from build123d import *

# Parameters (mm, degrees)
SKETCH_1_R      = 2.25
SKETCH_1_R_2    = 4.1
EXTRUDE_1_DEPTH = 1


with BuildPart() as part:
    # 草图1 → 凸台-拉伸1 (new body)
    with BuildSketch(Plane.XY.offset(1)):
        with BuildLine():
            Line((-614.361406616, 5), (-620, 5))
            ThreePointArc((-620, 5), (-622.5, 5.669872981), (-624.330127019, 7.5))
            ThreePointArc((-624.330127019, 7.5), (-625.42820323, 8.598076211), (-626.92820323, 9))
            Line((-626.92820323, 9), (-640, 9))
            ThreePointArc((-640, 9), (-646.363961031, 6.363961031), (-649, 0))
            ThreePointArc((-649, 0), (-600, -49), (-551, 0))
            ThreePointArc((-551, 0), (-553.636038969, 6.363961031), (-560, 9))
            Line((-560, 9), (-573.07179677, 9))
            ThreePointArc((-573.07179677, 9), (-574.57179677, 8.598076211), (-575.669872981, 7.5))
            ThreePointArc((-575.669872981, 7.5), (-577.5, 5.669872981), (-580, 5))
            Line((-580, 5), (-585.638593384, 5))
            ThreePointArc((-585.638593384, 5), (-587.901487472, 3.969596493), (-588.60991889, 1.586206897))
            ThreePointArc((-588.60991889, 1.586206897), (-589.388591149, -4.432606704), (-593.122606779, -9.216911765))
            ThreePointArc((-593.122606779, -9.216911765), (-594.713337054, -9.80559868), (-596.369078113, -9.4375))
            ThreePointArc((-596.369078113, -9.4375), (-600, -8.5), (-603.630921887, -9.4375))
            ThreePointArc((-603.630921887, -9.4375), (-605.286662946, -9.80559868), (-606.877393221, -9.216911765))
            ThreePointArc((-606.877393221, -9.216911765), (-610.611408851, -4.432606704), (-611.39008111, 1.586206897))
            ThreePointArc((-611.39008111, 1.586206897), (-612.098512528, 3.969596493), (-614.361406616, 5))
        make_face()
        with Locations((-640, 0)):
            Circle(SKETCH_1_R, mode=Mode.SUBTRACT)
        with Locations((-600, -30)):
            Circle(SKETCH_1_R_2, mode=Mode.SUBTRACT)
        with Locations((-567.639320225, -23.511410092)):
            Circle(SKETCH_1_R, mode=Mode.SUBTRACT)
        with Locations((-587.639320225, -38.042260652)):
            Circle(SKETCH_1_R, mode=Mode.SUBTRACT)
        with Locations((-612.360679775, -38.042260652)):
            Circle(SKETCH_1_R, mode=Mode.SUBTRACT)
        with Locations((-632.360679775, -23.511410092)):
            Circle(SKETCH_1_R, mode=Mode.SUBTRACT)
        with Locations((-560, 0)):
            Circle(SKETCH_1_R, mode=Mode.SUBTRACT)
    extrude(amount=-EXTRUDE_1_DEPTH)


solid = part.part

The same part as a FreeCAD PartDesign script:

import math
import FreeCAD as App
import Part
import Sketcher

V = App.Vector

doc = App.newDocument("Part")
body = doc.addObject("PartDesign::Body", "Body")

sketch1 = body.newObject("Sketcher::SketchObject", "Sketch")
sketch1.AttachmentSupport = (doc.getObject("XY_Plane"), [""])
sketch1.MapMode = "FlatFace"
sketch1.AttachmentOffset = App.Placement(V(0, 0, 1), App.Rotation())
sketch1.addGeometry([
    Part.LineSegment(V(-614.4, 5, 0), V(-620, 5, 0)),
    Part.ArcOfCircle(Part.Circle(V(-620, 10, 0), V(0, 0, 1), 5), math.radians(-150), math.radians(-90)),
    Part.ArcOfCircle(Part.Circle(V(-626.9, 6, 0), V(0, 0, 1), 3), math.radians(30), math.radians(90)),
    Part.LineSegment(V(-626.9, 9, 0), V(-640, 9, 0)),
    Part.ArcOfCircle(Part.Circle(V(-640, 0, 0), V(0, 0, 1), 9), math.radians(90), math.radians(180)),
    Part.ArcOfCircle(Part.Circle(V(-600, 0, 0), V(0, 0, 1), 49), math.radians(180), math.radians(360)),
    Part.ArcOfCircle(Part.Circle(V(-560, 0, 0), V(0, 0, 1), 9), math.radians(0), math.radians(90)),
    Part.LineSegment(V(-560, 9, 0), V(-573.1, 9, 0)),
    Part.ArcOfCircle(Part.Circle(V(-573.1, 6, 0), V(0, 0, 1), 3), math.radians(90), math.radians(150)),
    Part.ArcOfCircle(Part.Circle(V(-580, 10, 0), V(0, 0, 1), 5), math.radians(-90), math.radians(-30)),
    Part.LineSegment(V(-580, 5, 0), V(-585.6, 5, 0)),
    Part.ArcOfCircle(Part.Circle(V(-585.6, 2, 0), V(0, 0, 1), 3), math.radians(90), math.radians(188)),
    Part.ArcOfCircle(Part.Circle(V(-600, 0, 0), V(0, 0, 1), 11.5), math.radians(-53), math.radians(8)),
    Part.ArcOfCircle(Part.Circle(V(-594.9, -6.8, 0), V(0, 0, 1), 3), math.radians(-119), math.radians(-53)),
    Part.ArcOfCircle(Part.Circle(V(-600, -16, 0), V(0, 0, 1), 7.5), math.radians(61), math.radians(119)),
    Part.ArcOfCircle(Part.Circle(V(-605.1, -6.8, 0), V(0, 0, 1), 3), math.radians(-127), math.radians(-61)),
    Part.ArcOfCircle(Part.Circle(V(-600, 0, 0), V(0, 0, 1), 11.5), math.radians(172), math.radians(233)),
    Part.ArcOfCircle(Part.Circle(V(-614.4, 2, 0), V(0, 0, 1), 3), math.radians(-8), math.radians(90)),
    Part.Circle(V(-612.4, -38, 0), V(0, 0, 1), 2.2),
    Part.Circle(V(-632.4, -23.5, 0), V(0, 0, 1), 2.2),
    Part.Circle(V(-587.6, -38, 0), V(0, 0, 1), 2.2),
    Part.Circle(V(-600, -30, 0), V(0, 0, 1), 4.1),
    Part.Circle(V(-567.6, -23.5, 0), V(0, 0, 1), 2.2),
    Part.Circle(V(-640, 0, 0), V(0, 0, 1), 2.2),
    Part.Circle(V(-560, 0, 0), V(0, 0, 1), 2.2),
], False)
sketch1.addConstraint([
    Sketcher.Constraint("Tangent", 0, 2, 1, 2),
    Sketcher.Constraint("Tangent", 1, 1, 2, 1),
    Sketcher.Constraint("Tangent", 2, 2, 3, 1),
    Sketcher.Constraint("Tangent", 3, 2, 4, 1),
    Sketcher.Constraint("Tangent", 4, 2, 5, 1),
    Sketcher.Constraint("Tangent", 5, 2, 6, 1),
    Sketcher.Constraint("Tangent", 6, 2, 7, 1),
    Sketcher.Constraint("Tangent", 7, 2, 8, 1),
    Sketcher.Constraint("Tangent", 8, 2, 9, 2),
    Sketcher.Constraint("Tangent", 9, 1, 10, 1),
    Sketcher.Constraint("Tangent", 10, 2, 11, 1),
    Sketcher.Constraint("Tangent", 11, 2, 12, 2),
    Sketcher.Constraint("Tangent", 12, 1, 13, 2),
    Sketcher.Constraint("Tangent", 13, 1, 14, 1),
    Sketcher.Constraint("Tangent", 14, 2, 15, 2),
    Sketcher.Constraint("Tangent", 15, 1, 16, 2),
    Sketcher.Constraint("Tangent", 16, 1, 17, 1),
    Sketcher.Constraint("Tangent", 17, 2, 0, 1),
    Sketcher.Constraint("Horizontal", 0),
    Sketcher.Constraint("Horizontal", 3),
    Sketcher.Constraint("Horizontal", 7),
    Sketcher.Constraint("Horizontal", 10),
    Sketcher.Constraint("Coincident", 12, 3, 5, 3),
    Sketcher.Constraint("Coincident", 16, 3, 5, 3),
    Sketcher.Constraint("Coincident", 23, 3, 4, 3),
    Sketcher.Constraint("Coincident", 24, 3, 6, 3),
    Sketcher.Constraint("Equal", 4, 6),
    Sketcher.Constraint("Equal", 2, 8),
    Sketcher.Constraint("Equal", 1, 9),
    Sketcher.Constraint("Equal", 8, 11),
    Sketcher.Constraint("Equal", 11, 13),
    Sketcher.Constraint("Equal", 13, 15),
    Sketcher.Constraint("Equal", 12, 16),
    Sketcher.Constraint("Equal", 15, 17),
    Sketcher.Constraint("Equal", 18, 19),
    Sketcher.Constraint("Equal", 19, 20),
    Sketcher.Constraint("Equal", 20, 22),
    Sketcher.Constraint("Equal", 22, 23),
    Sketcher.Constraint("Equal", 23, 24),
    Sketcher.Constraint("PointOnObject", 4, 3, -1),
    Sketcher.Constraint("PointOnObject", 5, 3, -1),
    Sketcher.Constraint("PointOnObject", 6, 3, -1),
    Sketcher.Constraint("Horizontal", 1, 3, 9, 3),
    Sketcher.Constraint("Horizontal", 13, 3, 15, 3),
    Sketcher.Constraint("Horizontal", 18, 3, 20, 3),
    Sketcher.Constraint("Horizontal", 19, 3, 22, 3),
    Sketcher.Constraint("Vertical", 16, 3, 21, 3),
    Sketcher.Constraint("Equal", 3, 7),
    Sketcher.Constraint("Radius", 1, 5.0),
    Sketcher.Constraint("Radius", 2, 3.0),
    Sketcher.Constraint("Radius", 4, 9.0),
    Sketcher.Constraint("Radius", 5, 49.0),
    Sketcher.Constraint("Diameter", 18, 4.5),
    Sketcher.Constraint("Diameter", 21, 8.2),
    Sketcher.Constraint("Radius", 12, 11.5),
    Sketcher.Constraint("Radius", 14, 7.5),
    Sketcher.Constraint("DistanceX", 1, 3, -1, 1, 620.0),
    Sketcher.Constraint("DistanceY", -1, 1, 1, 3, 10.0),
    Sketcher.Constraint("DistanceX", 4, 3, -1, 1, 640.0),
    Sketcher.Constraint("DistanceY", 14, 3, -1, 1, 16.0),
    Sketcher.Constraint("DistanceY", 21, 3, -1, 1, 30.0),
    Sketcher.Constraint("DistanceX", 19, 3, 18, 3, 20.0),
    Sketcher.Constraint("DistanceX", 20, 3, 22, 3, 20.0),
    Sketcher.Constraint("DistanceX", 18, 3, -1, 1, 612.36068),
    Sketcher.Constraint("DistanceY", 18, 3, -1, 1, 38.042261),
    Sketcher.Constraint("DistanceY", 19, 3, -1, 1, 23.51141),
    Sketcher.Constraint("DistanceX", 20, 3, -1, 1, 587.63932),
])
pad1 = body.newObject("PartDesign::Pad", "Pad")
pad1.Profile = sketch1
pad1.Length = 1
pad1.Reversed = True

doc.recompute()
